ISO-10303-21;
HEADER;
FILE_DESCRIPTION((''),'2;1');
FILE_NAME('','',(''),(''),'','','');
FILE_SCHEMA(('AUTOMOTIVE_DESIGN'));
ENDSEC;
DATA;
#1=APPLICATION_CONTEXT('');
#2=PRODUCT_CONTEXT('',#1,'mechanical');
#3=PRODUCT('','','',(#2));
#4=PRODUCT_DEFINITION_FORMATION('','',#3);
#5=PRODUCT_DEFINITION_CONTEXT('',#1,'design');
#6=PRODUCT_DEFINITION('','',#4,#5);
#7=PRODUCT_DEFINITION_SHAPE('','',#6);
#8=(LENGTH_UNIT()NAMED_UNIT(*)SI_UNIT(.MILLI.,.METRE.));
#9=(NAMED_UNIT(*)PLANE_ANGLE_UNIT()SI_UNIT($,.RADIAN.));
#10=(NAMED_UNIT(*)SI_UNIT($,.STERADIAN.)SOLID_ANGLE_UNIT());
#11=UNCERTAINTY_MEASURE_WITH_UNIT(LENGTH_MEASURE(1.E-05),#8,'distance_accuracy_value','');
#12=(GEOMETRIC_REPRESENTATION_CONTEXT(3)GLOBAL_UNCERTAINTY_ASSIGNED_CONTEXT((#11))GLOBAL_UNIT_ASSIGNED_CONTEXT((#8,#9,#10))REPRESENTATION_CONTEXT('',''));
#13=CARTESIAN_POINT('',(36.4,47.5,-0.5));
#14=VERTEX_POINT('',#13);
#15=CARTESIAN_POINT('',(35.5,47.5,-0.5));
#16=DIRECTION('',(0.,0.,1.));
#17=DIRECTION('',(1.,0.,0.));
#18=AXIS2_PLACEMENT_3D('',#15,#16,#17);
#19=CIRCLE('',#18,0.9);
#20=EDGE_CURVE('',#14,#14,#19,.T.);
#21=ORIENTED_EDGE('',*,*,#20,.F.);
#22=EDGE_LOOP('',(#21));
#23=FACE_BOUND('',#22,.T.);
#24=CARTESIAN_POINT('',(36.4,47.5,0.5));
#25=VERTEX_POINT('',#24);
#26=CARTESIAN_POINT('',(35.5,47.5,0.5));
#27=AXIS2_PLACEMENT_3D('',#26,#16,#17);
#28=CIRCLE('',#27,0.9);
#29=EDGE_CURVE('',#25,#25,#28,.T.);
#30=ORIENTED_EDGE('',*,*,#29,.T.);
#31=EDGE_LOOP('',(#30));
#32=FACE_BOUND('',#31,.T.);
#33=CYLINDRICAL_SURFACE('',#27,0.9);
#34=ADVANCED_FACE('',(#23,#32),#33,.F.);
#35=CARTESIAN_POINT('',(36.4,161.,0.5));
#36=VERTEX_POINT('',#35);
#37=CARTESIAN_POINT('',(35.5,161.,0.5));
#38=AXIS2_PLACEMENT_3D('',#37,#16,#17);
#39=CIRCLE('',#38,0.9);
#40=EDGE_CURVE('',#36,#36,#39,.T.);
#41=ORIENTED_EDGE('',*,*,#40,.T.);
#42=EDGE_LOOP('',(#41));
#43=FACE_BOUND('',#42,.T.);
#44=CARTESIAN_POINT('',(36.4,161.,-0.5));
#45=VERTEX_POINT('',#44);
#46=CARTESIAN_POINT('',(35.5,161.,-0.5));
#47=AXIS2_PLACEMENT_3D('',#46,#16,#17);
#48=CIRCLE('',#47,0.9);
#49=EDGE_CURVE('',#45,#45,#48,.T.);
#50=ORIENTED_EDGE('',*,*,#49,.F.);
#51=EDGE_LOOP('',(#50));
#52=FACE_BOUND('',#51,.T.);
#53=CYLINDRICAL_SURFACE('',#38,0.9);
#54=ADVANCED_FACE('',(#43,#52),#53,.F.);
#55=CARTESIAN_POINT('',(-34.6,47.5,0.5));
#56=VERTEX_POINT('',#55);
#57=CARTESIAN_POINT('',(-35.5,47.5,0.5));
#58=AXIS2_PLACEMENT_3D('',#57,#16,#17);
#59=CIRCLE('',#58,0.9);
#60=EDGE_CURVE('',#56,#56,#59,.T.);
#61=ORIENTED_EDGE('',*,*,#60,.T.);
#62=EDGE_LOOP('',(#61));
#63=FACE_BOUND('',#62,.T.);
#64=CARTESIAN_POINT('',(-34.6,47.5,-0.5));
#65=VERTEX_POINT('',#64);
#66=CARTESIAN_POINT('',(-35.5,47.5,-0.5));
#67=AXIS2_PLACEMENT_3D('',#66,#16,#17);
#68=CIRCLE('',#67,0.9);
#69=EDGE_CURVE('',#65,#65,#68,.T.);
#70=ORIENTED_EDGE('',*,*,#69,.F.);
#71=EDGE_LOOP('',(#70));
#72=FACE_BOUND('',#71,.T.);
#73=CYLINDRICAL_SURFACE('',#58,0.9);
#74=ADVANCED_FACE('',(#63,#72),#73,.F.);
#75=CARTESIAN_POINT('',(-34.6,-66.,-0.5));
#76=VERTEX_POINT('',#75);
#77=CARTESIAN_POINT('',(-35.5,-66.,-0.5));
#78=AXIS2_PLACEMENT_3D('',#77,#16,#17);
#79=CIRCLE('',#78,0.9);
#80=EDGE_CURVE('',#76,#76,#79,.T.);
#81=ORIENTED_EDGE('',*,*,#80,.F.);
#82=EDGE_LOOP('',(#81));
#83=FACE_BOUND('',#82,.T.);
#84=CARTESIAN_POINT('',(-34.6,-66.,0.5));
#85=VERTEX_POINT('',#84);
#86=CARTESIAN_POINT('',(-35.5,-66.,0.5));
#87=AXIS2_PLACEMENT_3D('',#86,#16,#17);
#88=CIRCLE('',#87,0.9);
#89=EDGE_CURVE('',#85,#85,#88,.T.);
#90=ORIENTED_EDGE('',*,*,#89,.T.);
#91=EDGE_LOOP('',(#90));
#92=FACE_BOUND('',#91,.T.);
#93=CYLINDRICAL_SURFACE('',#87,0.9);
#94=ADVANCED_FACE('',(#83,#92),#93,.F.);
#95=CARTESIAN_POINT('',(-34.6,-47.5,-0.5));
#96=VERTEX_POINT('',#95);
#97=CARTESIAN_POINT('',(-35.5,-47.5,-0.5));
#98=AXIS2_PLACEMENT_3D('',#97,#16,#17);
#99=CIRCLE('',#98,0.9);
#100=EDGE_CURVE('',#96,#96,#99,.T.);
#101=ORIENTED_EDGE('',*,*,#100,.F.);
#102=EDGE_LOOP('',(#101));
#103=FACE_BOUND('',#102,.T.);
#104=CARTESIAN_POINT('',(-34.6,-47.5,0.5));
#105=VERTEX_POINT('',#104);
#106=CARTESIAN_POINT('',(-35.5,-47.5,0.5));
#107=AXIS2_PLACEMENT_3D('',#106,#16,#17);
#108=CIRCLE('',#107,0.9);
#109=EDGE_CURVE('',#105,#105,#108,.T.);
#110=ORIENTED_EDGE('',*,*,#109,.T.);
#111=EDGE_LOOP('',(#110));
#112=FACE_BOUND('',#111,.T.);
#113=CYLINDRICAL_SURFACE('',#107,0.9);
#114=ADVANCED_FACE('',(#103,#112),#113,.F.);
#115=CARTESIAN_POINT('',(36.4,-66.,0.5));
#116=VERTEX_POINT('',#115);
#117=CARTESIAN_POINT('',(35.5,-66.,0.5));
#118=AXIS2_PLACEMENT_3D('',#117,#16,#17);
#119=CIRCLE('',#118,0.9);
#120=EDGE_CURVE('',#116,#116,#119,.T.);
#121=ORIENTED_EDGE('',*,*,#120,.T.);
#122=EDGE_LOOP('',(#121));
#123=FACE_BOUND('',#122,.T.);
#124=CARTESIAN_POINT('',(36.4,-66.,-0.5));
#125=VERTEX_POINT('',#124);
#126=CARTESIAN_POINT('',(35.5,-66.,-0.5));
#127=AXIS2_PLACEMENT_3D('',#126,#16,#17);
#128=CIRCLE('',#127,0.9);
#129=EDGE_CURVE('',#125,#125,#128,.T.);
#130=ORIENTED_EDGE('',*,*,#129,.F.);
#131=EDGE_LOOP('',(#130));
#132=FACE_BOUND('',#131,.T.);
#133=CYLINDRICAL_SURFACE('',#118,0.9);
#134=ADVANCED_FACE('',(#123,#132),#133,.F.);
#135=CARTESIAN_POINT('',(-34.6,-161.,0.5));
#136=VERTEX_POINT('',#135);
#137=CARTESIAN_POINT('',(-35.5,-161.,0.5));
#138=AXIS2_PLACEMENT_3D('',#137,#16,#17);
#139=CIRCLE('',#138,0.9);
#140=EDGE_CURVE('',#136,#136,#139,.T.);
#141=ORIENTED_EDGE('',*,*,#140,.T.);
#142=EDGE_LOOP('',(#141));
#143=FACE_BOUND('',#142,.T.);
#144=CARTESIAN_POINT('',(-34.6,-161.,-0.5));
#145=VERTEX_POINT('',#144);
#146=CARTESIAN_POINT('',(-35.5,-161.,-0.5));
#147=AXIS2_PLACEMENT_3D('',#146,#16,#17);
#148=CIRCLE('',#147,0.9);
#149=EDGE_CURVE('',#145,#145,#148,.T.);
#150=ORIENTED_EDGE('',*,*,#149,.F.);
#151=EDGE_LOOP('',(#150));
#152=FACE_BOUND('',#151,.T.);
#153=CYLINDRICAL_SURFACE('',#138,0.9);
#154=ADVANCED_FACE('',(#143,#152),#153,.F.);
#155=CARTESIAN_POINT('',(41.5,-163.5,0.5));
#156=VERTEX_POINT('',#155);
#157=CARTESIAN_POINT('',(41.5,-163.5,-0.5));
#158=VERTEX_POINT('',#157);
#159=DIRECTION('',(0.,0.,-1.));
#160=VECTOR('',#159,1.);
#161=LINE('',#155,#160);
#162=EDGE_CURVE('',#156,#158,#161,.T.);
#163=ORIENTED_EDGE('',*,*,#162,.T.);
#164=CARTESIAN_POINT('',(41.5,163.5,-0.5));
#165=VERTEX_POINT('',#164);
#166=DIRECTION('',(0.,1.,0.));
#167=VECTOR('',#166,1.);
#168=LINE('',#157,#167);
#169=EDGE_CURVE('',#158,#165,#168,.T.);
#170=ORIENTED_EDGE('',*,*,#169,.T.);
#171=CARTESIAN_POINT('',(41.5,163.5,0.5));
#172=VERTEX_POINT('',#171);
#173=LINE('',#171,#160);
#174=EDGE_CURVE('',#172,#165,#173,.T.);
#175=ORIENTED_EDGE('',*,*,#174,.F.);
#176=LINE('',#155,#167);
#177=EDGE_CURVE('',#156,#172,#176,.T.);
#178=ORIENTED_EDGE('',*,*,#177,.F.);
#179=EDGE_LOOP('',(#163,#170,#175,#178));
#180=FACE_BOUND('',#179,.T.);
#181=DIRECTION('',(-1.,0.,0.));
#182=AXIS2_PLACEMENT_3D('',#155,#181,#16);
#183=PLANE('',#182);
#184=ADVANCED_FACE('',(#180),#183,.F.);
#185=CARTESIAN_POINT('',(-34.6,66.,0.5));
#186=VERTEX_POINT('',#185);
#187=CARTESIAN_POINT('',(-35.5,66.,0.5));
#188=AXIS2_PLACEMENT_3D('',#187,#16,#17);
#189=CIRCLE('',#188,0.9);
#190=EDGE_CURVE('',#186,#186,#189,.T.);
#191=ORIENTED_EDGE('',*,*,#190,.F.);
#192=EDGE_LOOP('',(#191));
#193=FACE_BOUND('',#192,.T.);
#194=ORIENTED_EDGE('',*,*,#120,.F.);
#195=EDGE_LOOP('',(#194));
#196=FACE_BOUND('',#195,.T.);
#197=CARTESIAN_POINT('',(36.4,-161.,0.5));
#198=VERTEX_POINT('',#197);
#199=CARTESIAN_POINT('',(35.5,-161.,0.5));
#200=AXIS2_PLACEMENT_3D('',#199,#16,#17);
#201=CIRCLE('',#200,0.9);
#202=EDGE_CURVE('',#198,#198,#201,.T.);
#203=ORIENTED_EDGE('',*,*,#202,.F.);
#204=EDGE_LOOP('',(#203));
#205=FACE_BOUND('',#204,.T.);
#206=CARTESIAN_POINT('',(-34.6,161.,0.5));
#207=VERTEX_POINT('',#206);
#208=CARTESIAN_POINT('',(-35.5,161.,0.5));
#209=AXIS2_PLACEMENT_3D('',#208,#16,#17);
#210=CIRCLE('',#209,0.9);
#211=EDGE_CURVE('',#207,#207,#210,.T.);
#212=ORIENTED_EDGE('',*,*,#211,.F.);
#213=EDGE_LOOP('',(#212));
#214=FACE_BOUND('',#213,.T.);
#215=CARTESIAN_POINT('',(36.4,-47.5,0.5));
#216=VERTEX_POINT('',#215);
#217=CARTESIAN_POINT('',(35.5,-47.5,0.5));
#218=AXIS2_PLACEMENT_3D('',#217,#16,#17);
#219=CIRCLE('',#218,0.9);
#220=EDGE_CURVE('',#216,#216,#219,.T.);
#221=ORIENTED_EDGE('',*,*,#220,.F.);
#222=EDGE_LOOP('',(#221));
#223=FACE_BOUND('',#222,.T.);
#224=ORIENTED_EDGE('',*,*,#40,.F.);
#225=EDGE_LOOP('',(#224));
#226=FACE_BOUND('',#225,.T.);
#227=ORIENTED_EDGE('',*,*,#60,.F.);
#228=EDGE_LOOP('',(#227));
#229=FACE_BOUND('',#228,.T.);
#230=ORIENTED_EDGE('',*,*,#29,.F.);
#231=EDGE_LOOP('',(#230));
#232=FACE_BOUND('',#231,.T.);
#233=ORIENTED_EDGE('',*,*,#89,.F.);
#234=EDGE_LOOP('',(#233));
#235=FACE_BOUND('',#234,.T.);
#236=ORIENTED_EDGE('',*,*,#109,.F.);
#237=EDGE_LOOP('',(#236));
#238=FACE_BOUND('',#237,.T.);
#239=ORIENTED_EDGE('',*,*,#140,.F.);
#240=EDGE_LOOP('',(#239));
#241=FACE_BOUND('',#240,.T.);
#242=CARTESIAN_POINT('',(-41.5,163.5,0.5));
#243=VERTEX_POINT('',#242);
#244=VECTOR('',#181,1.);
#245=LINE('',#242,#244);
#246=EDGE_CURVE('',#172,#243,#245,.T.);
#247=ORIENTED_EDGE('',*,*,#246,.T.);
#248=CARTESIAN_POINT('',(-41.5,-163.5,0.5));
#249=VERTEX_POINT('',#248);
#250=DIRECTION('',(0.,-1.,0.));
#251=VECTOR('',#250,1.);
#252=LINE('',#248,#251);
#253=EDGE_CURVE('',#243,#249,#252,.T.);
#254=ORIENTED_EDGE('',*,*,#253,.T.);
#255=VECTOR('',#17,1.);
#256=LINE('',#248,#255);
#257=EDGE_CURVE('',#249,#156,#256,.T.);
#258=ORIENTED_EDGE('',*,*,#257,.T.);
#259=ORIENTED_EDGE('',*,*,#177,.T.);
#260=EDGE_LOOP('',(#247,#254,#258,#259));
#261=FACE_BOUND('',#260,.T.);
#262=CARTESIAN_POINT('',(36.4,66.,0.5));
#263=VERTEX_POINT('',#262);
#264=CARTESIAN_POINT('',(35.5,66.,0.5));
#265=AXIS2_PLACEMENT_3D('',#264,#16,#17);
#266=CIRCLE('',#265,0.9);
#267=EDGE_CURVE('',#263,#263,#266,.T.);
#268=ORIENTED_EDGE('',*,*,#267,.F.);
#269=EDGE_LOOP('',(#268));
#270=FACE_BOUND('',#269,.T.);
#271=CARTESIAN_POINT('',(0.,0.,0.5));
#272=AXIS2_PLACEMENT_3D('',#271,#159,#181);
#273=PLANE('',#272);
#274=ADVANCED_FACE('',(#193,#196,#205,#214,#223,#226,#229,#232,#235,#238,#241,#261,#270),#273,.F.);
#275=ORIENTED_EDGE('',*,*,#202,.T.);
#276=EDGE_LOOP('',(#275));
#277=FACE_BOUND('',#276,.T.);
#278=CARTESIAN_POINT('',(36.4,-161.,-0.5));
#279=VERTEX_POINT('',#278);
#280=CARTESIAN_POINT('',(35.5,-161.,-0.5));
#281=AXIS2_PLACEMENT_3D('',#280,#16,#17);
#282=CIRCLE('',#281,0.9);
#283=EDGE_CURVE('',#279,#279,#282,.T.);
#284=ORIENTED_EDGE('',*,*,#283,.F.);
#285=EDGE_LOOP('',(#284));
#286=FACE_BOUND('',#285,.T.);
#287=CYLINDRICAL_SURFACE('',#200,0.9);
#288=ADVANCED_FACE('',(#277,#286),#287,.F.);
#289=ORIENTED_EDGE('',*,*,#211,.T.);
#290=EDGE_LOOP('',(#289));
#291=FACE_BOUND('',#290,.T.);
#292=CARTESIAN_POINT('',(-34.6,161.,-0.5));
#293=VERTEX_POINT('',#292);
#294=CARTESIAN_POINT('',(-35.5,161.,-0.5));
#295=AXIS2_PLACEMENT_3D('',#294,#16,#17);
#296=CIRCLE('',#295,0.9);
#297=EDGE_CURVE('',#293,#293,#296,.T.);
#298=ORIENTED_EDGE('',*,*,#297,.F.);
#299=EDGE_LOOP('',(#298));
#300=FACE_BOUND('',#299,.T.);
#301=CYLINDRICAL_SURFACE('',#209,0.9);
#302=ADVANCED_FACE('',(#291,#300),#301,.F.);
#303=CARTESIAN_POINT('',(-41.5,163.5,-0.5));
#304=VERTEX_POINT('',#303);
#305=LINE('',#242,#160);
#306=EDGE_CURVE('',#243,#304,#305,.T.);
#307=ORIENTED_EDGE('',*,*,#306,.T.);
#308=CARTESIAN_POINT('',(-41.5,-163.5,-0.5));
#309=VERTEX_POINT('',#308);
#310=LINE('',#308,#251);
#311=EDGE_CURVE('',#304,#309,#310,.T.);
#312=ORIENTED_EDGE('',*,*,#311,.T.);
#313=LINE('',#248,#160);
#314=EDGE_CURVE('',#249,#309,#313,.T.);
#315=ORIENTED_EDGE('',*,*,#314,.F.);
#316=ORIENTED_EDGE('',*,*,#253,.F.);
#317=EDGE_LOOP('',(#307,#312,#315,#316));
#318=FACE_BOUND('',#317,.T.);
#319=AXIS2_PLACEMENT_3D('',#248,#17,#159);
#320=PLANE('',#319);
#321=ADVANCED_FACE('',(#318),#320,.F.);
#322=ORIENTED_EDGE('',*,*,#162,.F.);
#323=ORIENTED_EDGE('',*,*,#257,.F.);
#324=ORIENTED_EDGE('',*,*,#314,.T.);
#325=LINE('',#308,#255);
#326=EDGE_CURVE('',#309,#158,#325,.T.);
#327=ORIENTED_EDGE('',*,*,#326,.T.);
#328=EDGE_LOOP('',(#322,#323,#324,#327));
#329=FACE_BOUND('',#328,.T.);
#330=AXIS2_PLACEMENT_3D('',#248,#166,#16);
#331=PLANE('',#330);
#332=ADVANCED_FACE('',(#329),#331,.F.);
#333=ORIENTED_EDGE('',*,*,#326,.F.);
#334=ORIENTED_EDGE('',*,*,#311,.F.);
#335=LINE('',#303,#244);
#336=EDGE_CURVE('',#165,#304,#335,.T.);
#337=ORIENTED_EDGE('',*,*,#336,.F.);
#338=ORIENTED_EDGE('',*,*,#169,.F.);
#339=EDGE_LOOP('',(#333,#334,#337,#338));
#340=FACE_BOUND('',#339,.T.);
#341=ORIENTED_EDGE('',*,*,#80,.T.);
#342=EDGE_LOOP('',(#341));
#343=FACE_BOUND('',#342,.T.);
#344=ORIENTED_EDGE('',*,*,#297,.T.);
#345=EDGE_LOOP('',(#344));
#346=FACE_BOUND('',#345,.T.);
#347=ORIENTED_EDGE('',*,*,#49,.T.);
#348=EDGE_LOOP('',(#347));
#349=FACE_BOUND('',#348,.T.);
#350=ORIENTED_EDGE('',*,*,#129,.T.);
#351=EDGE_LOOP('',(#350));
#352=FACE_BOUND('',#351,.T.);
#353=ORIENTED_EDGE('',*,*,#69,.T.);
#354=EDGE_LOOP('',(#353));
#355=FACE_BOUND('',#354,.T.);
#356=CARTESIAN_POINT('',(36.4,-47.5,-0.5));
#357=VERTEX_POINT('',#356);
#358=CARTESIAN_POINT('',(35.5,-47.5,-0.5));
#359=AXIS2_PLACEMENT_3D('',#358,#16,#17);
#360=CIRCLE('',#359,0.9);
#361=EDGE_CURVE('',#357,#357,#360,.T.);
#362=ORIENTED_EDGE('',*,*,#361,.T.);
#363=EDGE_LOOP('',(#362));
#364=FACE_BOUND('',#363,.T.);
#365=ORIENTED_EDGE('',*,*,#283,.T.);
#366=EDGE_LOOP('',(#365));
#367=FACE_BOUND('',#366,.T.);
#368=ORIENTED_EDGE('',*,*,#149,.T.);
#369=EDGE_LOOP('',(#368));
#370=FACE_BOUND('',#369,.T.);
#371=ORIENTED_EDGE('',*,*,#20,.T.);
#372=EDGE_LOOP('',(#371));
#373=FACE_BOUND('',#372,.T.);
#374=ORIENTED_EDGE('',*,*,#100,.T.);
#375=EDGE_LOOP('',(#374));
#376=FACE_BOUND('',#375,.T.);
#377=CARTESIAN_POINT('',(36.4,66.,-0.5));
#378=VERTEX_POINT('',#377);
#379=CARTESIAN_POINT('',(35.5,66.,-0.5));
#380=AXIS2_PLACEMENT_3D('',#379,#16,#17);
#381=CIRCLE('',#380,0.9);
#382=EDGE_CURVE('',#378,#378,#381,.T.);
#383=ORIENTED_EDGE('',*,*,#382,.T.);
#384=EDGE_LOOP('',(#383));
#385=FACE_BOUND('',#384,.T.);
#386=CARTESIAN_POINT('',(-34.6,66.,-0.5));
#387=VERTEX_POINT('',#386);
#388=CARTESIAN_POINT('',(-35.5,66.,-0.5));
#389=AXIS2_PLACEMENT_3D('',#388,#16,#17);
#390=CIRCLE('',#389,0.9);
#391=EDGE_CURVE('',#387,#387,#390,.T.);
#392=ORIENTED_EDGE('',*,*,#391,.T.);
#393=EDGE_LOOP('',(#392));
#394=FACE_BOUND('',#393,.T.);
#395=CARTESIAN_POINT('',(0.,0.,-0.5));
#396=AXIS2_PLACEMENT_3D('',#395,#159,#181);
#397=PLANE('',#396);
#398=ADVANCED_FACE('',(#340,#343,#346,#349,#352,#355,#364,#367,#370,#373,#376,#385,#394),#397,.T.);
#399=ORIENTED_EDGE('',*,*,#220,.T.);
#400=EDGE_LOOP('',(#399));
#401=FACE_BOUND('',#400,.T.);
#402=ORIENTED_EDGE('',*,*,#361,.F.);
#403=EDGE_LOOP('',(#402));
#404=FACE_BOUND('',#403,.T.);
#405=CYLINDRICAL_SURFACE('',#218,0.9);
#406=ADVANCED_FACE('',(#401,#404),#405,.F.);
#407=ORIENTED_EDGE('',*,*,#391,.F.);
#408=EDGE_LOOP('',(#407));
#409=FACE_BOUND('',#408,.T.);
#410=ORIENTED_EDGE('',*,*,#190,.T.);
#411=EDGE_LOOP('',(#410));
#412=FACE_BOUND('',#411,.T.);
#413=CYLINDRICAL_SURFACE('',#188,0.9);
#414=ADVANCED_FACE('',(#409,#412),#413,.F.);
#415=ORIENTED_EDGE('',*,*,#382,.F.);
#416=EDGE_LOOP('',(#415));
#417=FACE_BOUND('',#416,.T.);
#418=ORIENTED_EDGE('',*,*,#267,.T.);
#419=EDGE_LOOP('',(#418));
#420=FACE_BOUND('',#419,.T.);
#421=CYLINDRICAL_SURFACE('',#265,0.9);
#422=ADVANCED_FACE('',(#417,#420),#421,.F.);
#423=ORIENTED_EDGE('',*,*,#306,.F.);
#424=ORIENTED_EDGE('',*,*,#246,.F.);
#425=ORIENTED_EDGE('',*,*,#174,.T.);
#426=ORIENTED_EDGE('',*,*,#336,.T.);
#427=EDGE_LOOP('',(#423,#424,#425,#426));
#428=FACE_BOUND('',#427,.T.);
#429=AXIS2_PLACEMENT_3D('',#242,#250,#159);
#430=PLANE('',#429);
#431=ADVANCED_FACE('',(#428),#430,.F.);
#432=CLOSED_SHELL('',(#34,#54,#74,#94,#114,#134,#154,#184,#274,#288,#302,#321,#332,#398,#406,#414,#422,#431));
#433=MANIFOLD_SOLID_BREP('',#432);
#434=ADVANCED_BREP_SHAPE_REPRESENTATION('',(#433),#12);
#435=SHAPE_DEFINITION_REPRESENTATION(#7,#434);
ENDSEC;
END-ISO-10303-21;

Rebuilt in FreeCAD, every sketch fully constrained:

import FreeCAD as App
import Part
import Sketcher

V = App.Vector
Q = App.Units.Quantity

doc = App.newDocument("Part")
body = doc.addObject("PartDesign::Body", "Body")

# Sketch on XY plane
sketch1 = body.newObject("Sketcher::SketchObject", "Sketch")
sketch1.AttachmentSupport = (doc.getObject("XY_Plane"), [""])
sketch1.MapMode = "FlatFace"
sketch1.addGeometry([
    Part.LineSegment(V(-41.5, 163.5, 0), V(-41.5, -163.5, 0)),
    Part.LineSegment(V(-41.5, -163.5, 0), V(41.5, -163.5, 0)),
    Part.LineSegment(V(41.5, -163.5, 0), V(41.5, 163.5, 0)),
    Part.LineSegment(V(41.5, 163.5, 0), V(-41.5, 163.5, 0)),
], False)
sketch1.addConstraint([
    Sketcher.Constraint("Coincident", 0, 2, 1, 1),
    Sketcher.Constraint("Coincident", 1, 2, 2, 1),
    Sketcher.Constraint("Coincident", 2, 2, 3, 1),
    Sketcher.Constraint("Coincident", 3, 2, 0, 1),
    Sketcher.Constraint("Vertical", 0),
    Sketcher.Constraint("Horizontal", 1),
    Sketcher.Constraint("Vertical", 2),
    Sketcher.Constraint("Horizontal", 3),
    Sketcher.Constraint("Symmetric", 0, 2, 2, 2, -1, 1),
    Sketcher.Constraint("DistanceX", 1, 1, 1, 2, Q("83 mm")),
    Sketcher.Constraint("DistanceY", 0, 2, 0, 1, Q("327 mm")),
])
pad1 = body.newObject("PartDesign::Pad", "Pad")
pad1.Profile = sketch1
pad1.Length = 1
pad1.Midplane = True

# Sketch on XY plane
sketch2 = body.newObject("Sketcher::SketchObject", "Sketch001")
sketch2.AttachmentSupport = (doc.getObject("XY_Plane"), [""])
sketch2.MapMode = "FlatFace"
sketch2.AttachmentOffset = App.Placement(V(0, 0, 0.5), App.Rotation())
sketch2.addGeometry([
    Part.Circle(V(-35.5, 161, 0), V(0, 0, 1), 0.9),  # 0
    Part.Circle(V(35.5, 161, 0), V(0, 0, 1), 0.9),  # 1
    Part.Circle(V(-35.5, 66, 0), V(0, 0, 1), 0.9),  # 2
    Part.Circle(V(35.5, 66, 0), V(0, 0, 1), 0.9),  # 3
    Part.Circle(V(-35.5, 47.5, 0), V(0, 0, 1), 0.9),  # 4
    Part.Circle(V(35.5, 47.5, 0), V(0, 0, 1), 0.9),  # 5
    Part.Circle(V(-35.5, -47.5, 0), V(0, 0, 1), 0.9),  # 6
    Part.Circle(V(35.5, -47.5, 0), V(0, 0, 1), 0.9),  # 7
    Part.Circle(V(-35.5, -66, 0), V(0, 0, 1), 0.9),  # 8
    Part.Circle(V(35.5, -66, 0), V(0, 0, 1), 0.9),  # 9
    Part.Circle(V(-35.5, -161, 0), V(0, 0, 1), 0.9),  # 10
    Part.Circle(V(35.5, -161, 0), V(0, 0, 1), 0.9),  # 11
], False)
sketch2.addConstraint([
    Sketcher.Constraint("Equal", 0, 1),
    Sketcher.Constraint("Equal", 1, 2),
    Sketcher.Constraint("Equal", 2, 3),
    Sketcher.Constraint("Equal", 3, 4),
    Sketcher.Constraint("Equal", 4, 5),
    Sketcher.Constraint("Equal", 5, 6),
    Sketcher.Constraint("Equal", 6, 7),
    Sketcher.Constraint("Equal", 7, 8),
    Sketcher.Constraint("Equal", 8, 9),
    Sketcher.Constraint("Equal", 9, 10),
    Sketcher.Constraint("Equal", 10, 11),
    Sketcher.Constraint("Symmetric", 5, 3, 6, 3, -1, 1),
    Sketcher.Constraint("Symmetric", 4, 3, 7, 3, -1, 1),
    Sketcher.Constraint("Symmetric", 3, 3, 8, 3, -1, 1),
    Sketcher.Constraint("Symmetric", 2, 3, 9, 3, -1, 1),
    Sketcher.Constraint("Symmetric", 1, 3, 10, 3, -1, 1),
    Sketcher.Constraint("Symmetric", 0, 3, 11, 3, -1, 1),
    Sketcher.Constraint("Symmetric", 0, 3, 1, 3, -2),
    Sketcher.Constraint("Symmetric", 2, 3, 3, 3, -2),
    Sketcher.Constraint("Symmetric", 4, 3, 5, 3, -2),
    Sketcher.Constraint("Vertical", 0, 3, 2, 3),
    Sketcher.Constraint("Vertical", 2, 3, 4, 3),
    Sketcher.Constraint("Diameter", 0, Q("1.8 mm")),
    Sketcher.Constraint("DistanceY", -1, 1, 0, 3, Q("161 mm")),
    Sketcher.Constraint("DistanceY", -1, 1, 2, 3, Q("66 mm")),
    Sketcher.Constraint("DistanceX", 0, 3, 1, 3, Q("71 mm")),
    Sketcher.Constraint("DistanceY", 6, 3, 4, 3, Q("95 mm")),
])
doc.recompute()
hole = body.newObject("PartDesign::Hole", "Hole")
hole.Profile = sketch2
hole.ThreadType = "None"
hole.Diameter = 1.8
hole.DepthType = "ThroughAll"

doc.recompute()
